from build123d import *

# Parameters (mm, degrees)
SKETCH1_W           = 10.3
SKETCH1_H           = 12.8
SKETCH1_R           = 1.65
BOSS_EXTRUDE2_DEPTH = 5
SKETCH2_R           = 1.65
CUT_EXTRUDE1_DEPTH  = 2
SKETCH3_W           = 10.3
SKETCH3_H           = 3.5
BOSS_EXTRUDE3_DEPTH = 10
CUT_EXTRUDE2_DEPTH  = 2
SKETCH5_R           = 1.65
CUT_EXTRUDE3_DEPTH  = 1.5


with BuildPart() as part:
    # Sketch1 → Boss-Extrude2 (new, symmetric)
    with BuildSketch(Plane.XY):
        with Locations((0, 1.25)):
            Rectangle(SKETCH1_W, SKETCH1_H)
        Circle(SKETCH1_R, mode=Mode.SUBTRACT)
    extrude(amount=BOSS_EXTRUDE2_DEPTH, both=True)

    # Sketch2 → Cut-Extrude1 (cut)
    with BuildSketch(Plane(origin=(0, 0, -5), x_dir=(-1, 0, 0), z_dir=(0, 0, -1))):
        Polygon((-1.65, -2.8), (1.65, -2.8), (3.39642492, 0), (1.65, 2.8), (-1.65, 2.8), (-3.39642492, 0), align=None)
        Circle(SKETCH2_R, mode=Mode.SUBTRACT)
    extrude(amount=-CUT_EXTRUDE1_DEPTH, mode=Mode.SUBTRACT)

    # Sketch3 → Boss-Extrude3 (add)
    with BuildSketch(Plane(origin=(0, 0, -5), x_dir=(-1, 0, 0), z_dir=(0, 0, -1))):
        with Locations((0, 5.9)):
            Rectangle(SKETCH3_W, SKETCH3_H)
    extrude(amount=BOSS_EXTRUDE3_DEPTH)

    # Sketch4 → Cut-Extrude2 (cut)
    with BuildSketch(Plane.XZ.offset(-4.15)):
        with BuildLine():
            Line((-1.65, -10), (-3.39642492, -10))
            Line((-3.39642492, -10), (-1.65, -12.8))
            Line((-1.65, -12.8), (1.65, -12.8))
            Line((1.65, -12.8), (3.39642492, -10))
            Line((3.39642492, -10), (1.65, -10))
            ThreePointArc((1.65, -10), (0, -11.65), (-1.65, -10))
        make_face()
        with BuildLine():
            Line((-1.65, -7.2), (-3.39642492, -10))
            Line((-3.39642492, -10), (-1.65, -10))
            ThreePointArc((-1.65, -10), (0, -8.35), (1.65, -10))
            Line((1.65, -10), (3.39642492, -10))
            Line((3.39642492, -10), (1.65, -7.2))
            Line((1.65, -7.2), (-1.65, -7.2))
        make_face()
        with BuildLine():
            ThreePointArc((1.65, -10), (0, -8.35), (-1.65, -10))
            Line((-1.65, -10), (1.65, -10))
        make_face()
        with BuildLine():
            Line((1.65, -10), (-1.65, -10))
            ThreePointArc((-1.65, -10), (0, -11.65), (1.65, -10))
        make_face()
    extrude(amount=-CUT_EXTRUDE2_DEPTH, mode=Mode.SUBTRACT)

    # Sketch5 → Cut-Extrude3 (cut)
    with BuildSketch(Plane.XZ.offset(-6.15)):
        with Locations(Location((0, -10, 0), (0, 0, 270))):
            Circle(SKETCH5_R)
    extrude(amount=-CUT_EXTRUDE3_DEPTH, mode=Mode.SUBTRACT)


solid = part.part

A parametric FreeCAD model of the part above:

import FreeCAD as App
import Part
import Sketcher

doc = App.newDocument("Part")
body = doc.addObject("PartDesign::Body", "Body")

sketch1 = body.newObject("Sketcher::SketchObject", "Sketch")
sketch1.AttachmentSupport = (doc.getObject("XY_Plane"), [""])
sketch1.MapMode = "FlatFace"
sketch1.addGeometry(Part.LineSegment(App.Vector(-5.15, 7.65, 0), App.Vector(-5.15, -5.15, 0)), False)
sketch1.addGeometry(Part.LineSegment(App.Vector(-5.15, -5.15, 0), App.Vector(5.15, -5.15, 0)), False)
sketch1.addGeometry(Part.LineSegment(App.Vector(5.15, -5.15, 0), App.Vector(5.15, 7.65, 0)), False)
sketch1.addGeometry(Part.LineSegment(App.Vector(5.15, 7.65, 0), App.Vector(-5.15, 7.65, 0)), False)
sketch1.addGeometry(Part.Circle(App.Vector(0, 0, 0), App.Vector(0, 0, 1), 1.65), False)
sketch1.addConstraint(Sketcher.Constraint("Coincident", 0, 2, 1, 1))
sketch1.addConstraint(Sketcher.Constraint("Coincident", 1, 2, 2, 1))
sketch1.addConstraint(Sketcher.Constraint("Coincident", 2, 2, 3, 1))
sketch1.addConstraint(Sketcher.Constraint("Coincident", 3, 2, 0, 1))
sketch1.addConstraint(Sketcher.Constraint("Vertical", 0))
sketch1.addConstraint(Sketcher.Constraint("Horizontal", 1))
sketch1.addConstraint(Sketcher.Constraint("Vertical", 2))
sketch1.addConstraint(Sketcher.Constraint("Horizontal", 3))
sketch1.addConstraint(Sketcher.Constraint("Coincident", 4, 3, -1, 1))
sketch1.addConstraint(Sketcher.Constraint("Diameter", 4, 3.3))
sketch1.addConstraint(Sketcher.Constraint("DistanceX", 1, 1, 1, 2, 10.3))
sketch1.addConstraint(Sketcher.Constraint("DistanceY", 0, 2, 0, 1, 12.8))
sketch1.addConstraint(Sketcher.Constraint("DistanceX", 0, 2, -1, 1, 5.15))
sketch1.addConstraint(Sketcher.Constraint("DistanceY", 0, 2, -1, 1, 5.15))
pad1 = body.newObject("PartDesign::Pad", "Pad")
pad1.Profile = sketch1
pad1.Length = 10
pad1.Midplane = True

sketch2 = body.newObject("Sketcher::SketchObject", "Sketch001")
sketch2.AttachmentSupport = (doc.getObject("XY_Plane"), [""])
sketch2.MapMode = "FlatFace"
sketch2.AttachmentOffset = App.Placement(App.Vector(0, 0, -5), App.Rotation())
sketch2.addGeometry(Part.LineSegment(App.Vector(1.65, -2.8, 0), App.Vector(-1.65, -2.8, 0)), False)
sketch2.addGeometry(Part.LineSegment(App.Vector(-1.65, -2.8, 0), App.Vector(-3.396425, 0, 0)), False)
sketch2.addGeometry(Part.LineSegment(App.Vector(-3.396425, 0, 0), App.Vector(-1.65, 2.8, 0)), False)
sketch2.addGeometry(Part.LineSegment(App.Vector(-1.65, 2.8, 0), App.Vector(1.65, 2.8, 0)), False)
sketch2.addGeometry(Part.LineSegment(App.Vector(1.65, 2.8, 0), App.Vector(3.396425, 0, 0)), False)
sketch2.addGeometry(Part.LineSegment(App.Vector(3.396425, 0, 0), App.Vector(1.65, -2.8, 0)), False)
sketch2.addGeometry(Part.Circle(App.Vector(0, 0, 0), App.Vector(0, 0, 1), 1.65), False)
sketch2.addConstraint(Sketcher.Constraint("Coincident", 0, 2, 1, 1))
sketch2.addConstraint(Sketcher.Constraint("Coincident", 1, 2, 2, 1))
sketch2.addConstraint(Sketcher.Constraint("Coincident", 2, 2, 3, 1))
sketch2.addConstraint(Sketcher.Constraint("Coincident", 3, 2, 4, 1))
sketch2.addConstraint(Sketcher.Constraint("Coincident", 4, 2, 5, 1))
sketch2.addConstraint(Sketcher.Constraint("Coincident", 5, 2, 0, 1))
sketch2.addConstraint(Sketcher.Constraint("Horizontal", 0))
sketch2.addConstraint(Sketcher.Constraint("Horizontal", 3))
sketch2.addConstraint(Sketcher.Constraint("Coincident", 6, 3, -1, 1))
sketch2.addConstraint(Sketcher.Constraint("Symmetric", 0, 2, 3, 2, -1, 1))
sketch2.addConstraint(Sketcher.Constraint("Symmetric", 1, 2, 4, 2, -1, 1))
sketch2.addConstraint(Sketcher.Constraint("PointOnObject", 1, 2, -1))
sketch2.addConstraint(Sketcher.Constraint("Parallel", 2, 5))
sketch2.addConstraint(Sketcher.Constraint("Vertical", 0, 2, 2, 2))
sketch2.addConstraint(Sketcher.Constraint("Diameter", 6, 3.3))
sketch2.addConstraint(Sketcher.Constraint("DistanceX", 0, 2, 0, 1, 3.3))
sketch2.addConstraint(Sketcher.Constraint("Distance", 1, 3.3))
sketch2.addConstraint(Sketcher.Constraint("DistanceY", 0, 2, -1, 1, 2.8))
pocket1 = body.newObject("PartDesign::Pocket", "Pocket")
pocket1.Profile = sketch2
pocket1.Length = 2
pocket1.Reversed = True

sketch3 = body.newObject("Sketcher::SketchObject", "Sketch002")
sketch3.AttachmentSupport = (doc.getObject("XY_Plane"), [""])
sketch3.MapMode = "FlatFace"
sketch3.AttachmentOffset = App.Placement(App.Vector(0, 0, -5), App.Rotation())
sketch3.addGeometry(Part.LineSegment(App.Vector(5.15, 7.65, 0), App.Vector(5.15, 4.15, 0)), False)
sketch3.addGeometry(Part.LineSegment(App.Vector(5.15, 4.15, 0), App.Vector(-5.15, 4.15, 0)), False)
sketch3.addGeometry(Part.LineSegment(App.Vector(-5.15, 4.15, 0), App.Vector(-5.15, 7.65, 0)), False)
sketch3.addGeometry(Part.LineSegment(App.Vector(-5.15, 7.65, 0), App.Vector(5.15, 7.65, 0)), False)
sketch3.addConstraint(Sketcher.Constraint("Coincident", 0, 2, 1, 1))
sketch3.addConstraint(Sketcher.Constraint("Coincident", 1, 2, 2, 1))
sketch3.addConstraint(Sketcher.Constraint("Coincident", 2, 2, 3, 1))
sketch3.addConstraint(Sketcher.Constraint("Coincident", 3, 2, 0, 1))
sketch3.addConstraint(Sketcher.Constraint("Vertical", 0))
sketch3.addConstraint(Sketcher.Constraint("Horizontal", 1))
sketch3.addConstraint(Sketcher.Constraint("Vertical", 2))
sketch3.addConstraint(Sketcher.Constraint("Horizontal", 3))
sketch3.addConstraint(Sketcher.Constraint("DistanceX", 1, 2, 1, 1, 10.3))
sketch3.addConstraint(Sketcher.Constraint("DistanceY", 0, 2, 0, 1, 3.5))
sketch3.addConstraint(Sketcher.Constraint("DistanceX", -1, 1, 0, 2, 5.15))
sketch3.addConstraint(Sketcher.Constraint("DistanceY", -1, 1, 0, 2, 4.15))
pad2 = body.newObject("PartDesign::Pad", "Pad001")
pad2.Profile = sketch3
pad2.Length = 10
pad2.Reversed = True

sketch4 = body.newObject("Sketcher::SketchObject", "Sketch003")
sketch4.AttachmentSupport = (doc.getObject("XZ_Plane"), [""])
sketch4.MapMode = "FlatFace"
sketch4.AttachmentOffset = App.Placement(App.Vector(0, 0, -4.15), App.Rotation())
sketch4.addGeometry(Part.LineSegment(App.Vector(-3.396425, -10, 0), App.Vector(-1.65, -12.8, 0)), False)
sketch4.addGeometry(Part.LineSegment(App.Vector(-1.65, -12.8, 0), App.Vector(1.65, -12.8, 0)), False)
sketch4.addGeometry(Part.LineSegment(App.Vector(1.65, -12.8, 0), App.Vector(3.396425, -10, 0)), False)
sketch4.addGeometry(Part.LineSegment(App.Vector(3.396425, -10, 0), App.Vector(1.65, -7.2, 0)), False)
sketch4.addGeometry(Part.LineSegment(App.Vector(1.65, -7.2, 0), App.Vector(-1.65, -7.2, 0)), False)
sketch4.addGeometry(Part.LineSegment(App.Vector(-1.65, -7.2, 0), App.Vector(-3.396425, -10, 0)), False)
sketch4.addConstraint(Sketcher.Constraint("Coincident", 0, 2, 1, 1))
sketch4.addConstraint(Sketcher.Constraint("Coincident", 1, 2, 2, 1))
sketch4.addConstraint(Sketcher.Constraint("Coincident", 2, 2, 3, 1))
sketch4.addConstraint(Sketcher.Constraint("Coincident", 3, 2, 4, 1))
sketch4.addConstraint(Sketcher.Constraint("Coincident", 4, 2, 5, 1))
sketch4.addConstraint(Sketcher.Constraint("Coincident", 5, 2, 0, 1))
sketch4.addConstraint(Sketcher.Constraint("Horizontal", 1))
sketch4.addConstraint(Sketcher.Constraint("Horizontal", 4))
sketch4.addConstraint(Sketcher.Constraint("Symmetric", 2, 2, 5, 2, -2))
sketch4.addConstraint(Sketcher.Constraint("Parallel", 0, 3))
sketch4.addConstraint(Sketcher.Constraint("Parallel", 2, 5))
sketch4.addConstraint(Sketcher.Constraint("Vertical", 1, 2, 3, 2))
sketch4.addConstraint(Sketcher.Constraint("Vertical", 0, 2, 4, 2))
sketch4.addConstraint(Sketcher.Constraint("DistanceX", 1, 1, 1, 2, 3.3))
sketch4.addConstraint(Sketcher.Constraint("DistanceY", 2, 2, -1, 1, 10.0))
sketch4.addConstraint(Sketcher.Constraint("Distance", 0, 3.3))
sketch4.addConstraint(Sketcher.Constraint("DistanceY", 0, 2, -1, 1, 12.8))
pocket2 = body.newObject("PartDesign::Pocket", "Pocket001")
pocket2.Profile = sketch4
pocket2.Length = 2

sketch5 = body.newObject("Sketcher::SketchObject", "Sketch004")
sketch5.AttachmentSupport = (doc.getObject("XZ_Plane"), [""])
sketch5.MapMode = "FlatFace"
sketch5.AttachmentOffset = App.Placement(App.Vector(0, 0, -6.15), App.Rotation())
sketch5.addGeometry(Part.Circle(App.Vector(0, -10, 0), App.Vector(0, 0, 1), 1.65), False)
sketch5.addConstraint(Sketcher.Constraint("PointOnObject", 0, 3, -2))
sketch5.addConstraint(Sketcher.Constraint("Diameter", 0, 3.3))
sketch5.addConstraint(Sketcher.Constraint("DistanceY", 0, 3, -1, 1, 10.0))
pocket3 = body.newObject("PartDesign::Pocket", "Pocket002")
pocket3.Profile = sketch5
pocket3.Length = 1.5

doc.recompute()
